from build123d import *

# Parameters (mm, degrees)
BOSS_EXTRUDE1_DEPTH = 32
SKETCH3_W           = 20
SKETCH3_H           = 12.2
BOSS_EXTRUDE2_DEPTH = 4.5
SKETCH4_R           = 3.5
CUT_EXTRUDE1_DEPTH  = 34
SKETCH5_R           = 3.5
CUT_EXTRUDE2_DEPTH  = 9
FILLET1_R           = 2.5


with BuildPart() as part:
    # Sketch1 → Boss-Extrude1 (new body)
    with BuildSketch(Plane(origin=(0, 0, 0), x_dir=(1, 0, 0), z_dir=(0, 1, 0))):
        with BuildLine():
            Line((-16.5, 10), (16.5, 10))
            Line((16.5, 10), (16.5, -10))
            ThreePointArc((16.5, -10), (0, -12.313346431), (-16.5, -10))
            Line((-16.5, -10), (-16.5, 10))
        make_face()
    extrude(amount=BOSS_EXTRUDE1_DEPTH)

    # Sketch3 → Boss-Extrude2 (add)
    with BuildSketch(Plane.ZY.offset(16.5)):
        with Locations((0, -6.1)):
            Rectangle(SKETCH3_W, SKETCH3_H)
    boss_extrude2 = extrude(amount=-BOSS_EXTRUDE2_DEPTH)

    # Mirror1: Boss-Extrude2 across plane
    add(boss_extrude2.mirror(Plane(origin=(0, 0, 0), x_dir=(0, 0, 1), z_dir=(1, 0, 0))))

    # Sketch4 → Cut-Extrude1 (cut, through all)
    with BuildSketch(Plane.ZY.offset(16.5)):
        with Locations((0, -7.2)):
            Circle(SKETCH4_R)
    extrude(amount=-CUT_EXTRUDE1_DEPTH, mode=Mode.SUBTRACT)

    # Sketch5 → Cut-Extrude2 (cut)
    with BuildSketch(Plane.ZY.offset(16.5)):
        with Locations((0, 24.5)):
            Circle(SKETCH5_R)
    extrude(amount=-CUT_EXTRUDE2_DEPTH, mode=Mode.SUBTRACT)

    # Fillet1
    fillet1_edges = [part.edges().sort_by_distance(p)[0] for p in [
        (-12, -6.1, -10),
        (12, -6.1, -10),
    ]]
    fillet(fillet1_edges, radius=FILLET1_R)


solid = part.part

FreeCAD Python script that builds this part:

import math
import FreeCAD as App
import Part
import Sketcher


def edges_at(feature, points):
    """Names of the edges that pass closest to the given points."""
    edges = feature.Shape.Edges
    near = lambda p: min(range(len(edges)), key=lambda i: edges[i].distToShape(Part.Vertex(*p))[0])
    return sorted({f"Edge{near(p) + 1}" for p in points})


def add_polygon(sketch, points):
    """Adds a closed chain of lines whose ends are joined by coincident constraints."""
    first, n = sketch.GeometryCount, len(points)
    for a, b in zip(points, points[1:] + points[:1]):
        sketch.addGeometry(Part.LineSegment(App.Vector(*a, 0), App.Vector(*b, 0)), False)
    for i in range(n):
        sketch.addConstraint(Sketcher.Constraint("Coincident", first + i, 2, first + (i + 1) % n, 1))

doc = App.newDocument("Part")
body = doc.addObject("PartDesign::Body", "Body")

sketch1 = body.newObject("Sketcher::SketchObject", "Sketch")
sketch1.AttachmentSupport = (doc.getObject("XZ_Plane"), [""])
sketch1.MapMode = "FlatFace"
sketch1.addGeometry(Part.LineSegment(App.Vector(16, -10, 0), App.Vector(-16, -10, 0)), False)
sketch1.addGeometry(Part.LineSegment(App.Vector(-16, -10, 0), App.Vector(-16, 10, 0)), False)
sketch1.addGeometry(Part.ArcOfCircle(Part.Circle(App.Vector(0, -48, 0), App.Vector(0, 0, 1), 60), math.radians(74), math.radians(106)), False)
sketch1.addGeometry(Part.LineSegment(App.Vector(16, 10, 0), App.Vector(16, -10, 0)), False)
sketch1.addConstraint(Sketcher.Constraint("Coincident", 0, 2, 1, 1))
sketch1.addConstraint(Sketcher.Constraint("Coincident", 1, 2, 2, 2))
sketch1.addConstraint(Sketcher.Constraint("Coincident", 2, 1, 3, 1))
sketch1.addConstraint(Sketcher.Constraint("Coincident", 3, 2, 0, 1))
sketch1.addConstraint(Sketcher.Constraint("Horizontal", 0))
sketch1.addConstraint(Sketcher.Constraint("Vertical", 1))
sketch1.addConstraint(Sketcher.Constraint("Vertical", 3))
sketch1.addConstraint(Sketcher.Constraint("Symmetric", 0, 2, 2, 1, -1, 1))
sketch1.addConstraint(Sketcher.Constraint("PointOnObject", 2, 3, -2))
sketch1.addConstraint(Sketcher.Constraint("Radius", 2, 60.0))
sketch1.addConstraint(Sketcher.Constraint("DistanceX", 0, 2, 0, 1, 33.0))
sketch1.addConstraint(Sketcher.Constraint("DistanceY", 1, 1, 1, 2, 20.0))
pad1 = body.newObject("PartDesign::Pad", "Pad")
pad1.Profile = sketch1
pad1.Length = 32
pad1.Reversed = True

sketch2 = body.newObject("Sketcher::SketchObject", "Sketch001")
sketch2.AttachmentSupport = (doc.getObject("YZ_Plane"), [""])
sketch2.MapMode = "FlatFace"
sketch2.AttachmentOffset = App.Placement(App.Vector(0, 0, -16.5), App.Rotation())
add_polygon(sketch2, [(0, -10), (-12, -10), (-12, 10), (0, 10)])
sketch2.addConstraint(Sketcher.Constraint("Horizontal", 0))
sketch2.addConstraint(Sketcher.Constraint("Vertical", 1))
sketch2.addConstraint(Sketcher.Constraint("Horizontal", 2))
sketch2.addConstraint(Sketcher.Constraint("Vertical", 3))
sketch2.addConstraint(Sketcher.Constraint("Symmetric", 2, 2, 3, 2, -1, 1))
sketch2.addConstraint(Sketcher.Constraint("DistanceY", 1, 1, 1, 2, 20.0))
sketch2.addConstraint(Sketcher.Constraint("DistanceX", 0, 2, 0, 1, 12.2))
pad2 = body.newObject("PartDesign::Pad", "Pad001")
pad2.Profile = sketch2
pad2.Length = 4.5
doc.recompute()

mirrored = body.newObject("PartDesign::Mirrored", "Mirrored")
mirrored.Originals = [pad2]
mirrored.MirrorPlane = (doc.getObject("YZ_Plane"), [""])
body.Tip = mirrored

sketch3 = body.newObject("Sketcher::SketchObject", "Sketch002")
sketch3.AttachmentSupport = (doc.getObject("YZ_Plane"), [""])
sketch3.MapMode = "FlatFace"
sketch3.AttachmentOffset = App.Placement(App.Vector(0, 0, -16.5), App.Rotation())
sketch3.addGeometry(Part.Circle(App.Vector(-7.2, 0, 0), App.Vector(0, 0, 1), 3.5), False)
sketch3.addConstraint(Sketcher.Constraint("PointOnObject", 0, 3, -1))
sketch3.addConstraint(Sketcher.Constraint("Diameter", 0, 7.0))
sketch3.addConstraint(Sketcher.Constraint("DistanceX", 0, 3, -1, 1, 7.2))
pocket1 = body.newObject("PartDesign::Pocket", "Pocket")
pocket1.Profile = sketch3
pocket1.Type = "ThroughAll"
pocket1.Reversed = True

sketch4 = body.newObject("Sketcher::SketchObject", "Sketch003")
sketch4.AttachmentSupport = (doc.getObject("YZ_Plane"), [""])
sketch4.MapMode = "FlatFace"
sketch4.AttachmentOffset = App.Placement(App.Vector(0, 0, -16.5), App.Rotation())
sketch4.addGeometry(Part.Circle(App.Vector(24.5, 0, 0), App.Vector(0, 0, 1), 3.5), False)
sketch4.addConstraint(Sketcher.Constraint("PointOnObject", 0, 3, -1))
sketch4.addConstraint(Sketcher.Constraint("Diameter", 0, 7.0))
sketch4.addConstraint(Sketcher.Constraint("DistanceX", -1, 1, 0, 3, 24.5))
pocket2 = body.newObject("PartDesign::Pocket", "Pocket001")
pocket2.Profile = sketch4
pocket2.Length = 9
pocket2.Reversed = True
doc.recompute()

fillet = body.newObject("PartDesign::Fillet", "Fillet")
fillet.Base = (pocket2, edges_at(pocket2, [(-12, -6.1, -10), (12, -6.1, -10)]))
fillet.Radius = 2.5

doc.recompute()
